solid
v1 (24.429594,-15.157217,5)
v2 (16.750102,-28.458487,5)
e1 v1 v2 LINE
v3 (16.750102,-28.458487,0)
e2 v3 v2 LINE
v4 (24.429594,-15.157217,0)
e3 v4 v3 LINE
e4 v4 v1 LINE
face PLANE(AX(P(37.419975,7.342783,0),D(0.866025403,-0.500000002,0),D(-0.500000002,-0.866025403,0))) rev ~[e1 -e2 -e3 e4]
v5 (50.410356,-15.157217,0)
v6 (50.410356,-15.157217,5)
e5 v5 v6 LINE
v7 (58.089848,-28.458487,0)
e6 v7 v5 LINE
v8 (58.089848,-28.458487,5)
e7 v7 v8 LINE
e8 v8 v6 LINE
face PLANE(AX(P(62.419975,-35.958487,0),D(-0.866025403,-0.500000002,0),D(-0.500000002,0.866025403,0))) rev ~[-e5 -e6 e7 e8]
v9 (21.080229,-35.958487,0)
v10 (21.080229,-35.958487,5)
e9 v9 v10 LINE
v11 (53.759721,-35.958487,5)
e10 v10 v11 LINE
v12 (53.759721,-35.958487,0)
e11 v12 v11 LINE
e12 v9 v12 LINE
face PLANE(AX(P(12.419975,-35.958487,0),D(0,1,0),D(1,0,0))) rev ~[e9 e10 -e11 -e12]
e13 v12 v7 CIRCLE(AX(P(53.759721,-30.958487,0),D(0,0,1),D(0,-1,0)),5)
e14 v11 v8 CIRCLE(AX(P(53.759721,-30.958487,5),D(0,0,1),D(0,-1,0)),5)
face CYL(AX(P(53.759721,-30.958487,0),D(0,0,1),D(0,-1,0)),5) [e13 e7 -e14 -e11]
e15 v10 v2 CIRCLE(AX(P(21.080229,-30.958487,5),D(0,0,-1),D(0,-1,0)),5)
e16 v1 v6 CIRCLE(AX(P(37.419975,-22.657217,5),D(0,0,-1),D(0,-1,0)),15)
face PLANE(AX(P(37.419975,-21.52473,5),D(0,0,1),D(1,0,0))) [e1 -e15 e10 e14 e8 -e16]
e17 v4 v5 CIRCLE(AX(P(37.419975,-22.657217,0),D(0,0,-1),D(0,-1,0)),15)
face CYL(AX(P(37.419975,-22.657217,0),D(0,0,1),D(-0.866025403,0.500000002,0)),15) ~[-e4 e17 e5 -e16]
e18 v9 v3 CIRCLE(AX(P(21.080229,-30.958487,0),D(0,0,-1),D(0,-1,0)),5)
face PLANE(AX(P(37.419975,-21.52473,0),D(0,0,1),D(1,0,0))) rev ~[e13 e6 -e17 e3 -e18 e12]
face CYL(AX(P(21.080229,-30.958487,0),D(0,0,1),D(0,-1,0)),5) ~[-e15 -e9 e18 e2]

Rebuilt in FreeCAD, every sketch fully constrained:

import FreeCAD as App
import Part
import Sketcher
Q = App.Units.Quantity


def edges_at(feature, points):
    """Names of the edges that pass closest to the given points."""
    edges = feature.Shape.Edges
    near = lambda p: min(range(len(edges)), key=lambda i: edges[i].distToShape(Part.Vertex(*p))[0])
    return sorted({f"Edge{near(p) + 1}" for p in points})


def add_polygon(sketch, points):
    """Adds a closed chain of lines whose ends are joined by coincident constraints."""
    first, n = sketch.GeometryCount, len(points)
    for a, b in zip(points, points[1:] + points[:1]):
        sketch.addGeometry(Part.LineSegment(App.Vector(*a, 0), App.Vector(*b, 0)), False)
    for i in range(n):
        sketch.addConstraint(Sketcher.Constraint("Coincident", first + i, 2, first + (i + 1) % n, 1))

doc = App.newDocument("Part")
body = doc.addObject("PartDesign::Body", "Body")

# Sketch on XY plane
sketch1 = doc.addObject("Sketcher::SketchObject", "Sketch")
body.addObject(sketch1)
sketch1.AttachmentSupport = (doc.XY_Plane, [""])
sketch1.MapMode = "FlatFace"
add_polygon(sketch1, [(12, -36), (62, -36), (37, 7)])  # lines 0-2
sketch1.addConstraint(Sketcher.Constraint("Horizontal", 0))
sketch1.addConstraint(Sketcher.Constraint("Equal", 1, 2))
sketch1.addConstraint(Sketcher.Constraint("DistanceX", 0, 1, 0, 2, Q("50 mm")))
sketch1.addConstraint(Sketcher.Constraint("Angle", 1, Q("120 deg")))
sketch1.addConstraint(Sketcher.Constraint("DistanceX", -1, 1, 0, 2, Q("62.419975 mm")))
sketch1.addConstraint(Sketcher.Constraint("DistanceY", 0, 2, -1, 1, Q("35.958487 mm")))
pad1 = doc.addObject("PartDesign::Pad", "Pad")
body.addObject(pad1)
pad1.Profile = sketch1
pad1.Length = 5
doc.recompute()

fillet = doc.addObject("PartDesign::Fillet", "Fillet")
body.addObject(fillet)
fillet.Base = (pad1, edges_at(pad1, [(62.42, -35.958, 2.5), (12.42, -35.958, 2.5)]))
fillet.Radius = 5
doc.recompute()

fillet2 = doc.addObject("PartDesign::Fillet", "Fillet001")
body.addObject(fillet2)
fillet2.Base = (fillet, edges_at(fillet, [(37.42, 7.343, 2.5)]))
fillet2.Radius = 15

doc.recompute()
